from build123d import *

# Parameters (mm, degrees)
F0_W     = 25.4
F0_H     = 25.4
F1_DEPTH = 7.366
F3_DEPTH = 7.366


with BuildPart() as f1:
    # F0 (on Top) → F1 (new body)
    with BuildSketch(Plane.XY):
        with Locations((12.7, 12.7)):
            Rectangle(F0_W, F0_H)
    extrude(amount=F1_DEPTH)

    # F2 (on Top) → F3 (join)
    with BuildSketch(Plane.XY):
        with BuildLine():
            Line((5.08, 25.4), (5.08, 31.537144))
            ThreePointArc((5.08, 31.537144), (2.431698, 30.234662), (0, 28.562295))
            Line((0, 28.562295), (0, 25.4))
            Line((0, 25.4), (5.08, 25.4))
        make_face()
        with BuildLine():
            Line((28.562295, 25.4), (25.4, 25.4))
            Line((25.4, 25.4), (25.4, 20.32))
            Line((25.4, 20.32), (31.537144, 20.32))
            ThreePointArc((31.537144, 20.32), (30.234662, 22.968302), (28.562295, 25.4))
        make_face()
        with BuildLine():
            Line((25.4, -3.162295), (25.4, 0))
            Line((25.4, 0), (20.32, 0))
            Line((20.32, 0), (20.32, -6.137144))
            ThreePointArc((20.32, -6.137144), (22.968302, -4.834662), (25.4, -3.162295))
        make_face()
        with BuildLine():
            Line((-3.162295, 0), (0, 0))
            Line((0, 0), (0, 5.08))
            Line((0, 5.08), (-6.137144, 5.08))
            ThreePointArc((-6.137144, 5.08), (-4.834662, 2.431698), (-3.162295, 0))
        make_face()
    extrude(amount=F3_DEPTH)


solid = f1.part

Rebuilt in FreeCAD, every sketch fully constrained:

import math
import FreeCAD as App
import Part
import Sketcher

V = App.Vector
Q = App.Units.Quantity

doc = App.newDocument("Part")
body = doc.addObject("PartDesign::Body", "Body")

# Sketch on XY plane
sketch1 = body.newObject("Sketcher::SketchObject", "Sketch")
sketch1.AttachmentSupport = (doc.getObject("XY_Plane"), [""])
sketch1.MapMode = "FlatFace"
sketch1.addGeometry([
    Part.LineSegment(V(0, 25.4, 0), V(0, 0, 0)),
    Part.LineSegment(V(0, 0, 0), V(25.4, 0, 0)),
    Part.LineSegment(V(25.4, 0, 0), V(25.4, 25.4, 0)),
    Part.LineSegment(V(25.4, 25.4, 0), V(0, 25.4, 0)),
], False)
sketch1.addConstraint([
    Sketcher.Constraint("Coincident", 0, 2, 1, 1),
    Sketcher.Constraint("Coincident", 1, 2, 2, 1),
    Sketcher.Constraint("Coincident", 2, 2, 3, 1),
    Sketcher.Constraint("Coincident", 3, 2, 0, 1),
    Sketcher.Constraint("Vertical", 0),
    Sketcher.Constraint("Horizontal", 1),
    Sketcher.Constraint("Vertical", 2),
    Sketcher.Constraint("Horizontal", 3),
    Sketcher.Constraint("Coincident", 0, 2, -1, 1),
    Sketcher.Constraint("Equal", 3, 0),
    Sketcher.Constraint("DistanceX", 1, 1, 1, 2, Q("1 in")),
])
pad1 = body.newObject("PartDesign::Pad", "Pad")
pad1.Profile = sketch1
pad1.Length = Q("0.29 in")

# Sketch on XY plane
sketch2 = body.newObject("Sketcher::SketchObject", "Sketch001")
sketch2.AttachmentSupport = (doc.getObject("XY_Plane"), [""])
sketch2.MapMode = "FlatFace"
sketch2.addGeometry([
    Part.LineSegment(V(5.08, 25.4, 0), V(5.08, 31.537144, 0)),  # 0
    Part.ArcOfCircle(Part.Circle(V(12.7, 12.699998, 0), V(0, 0, 1), 20.320002), math.radians(112.024312), math.radians(128.682184)),  # 1
    Part.LineSegment(V(0, 28.562295, 0), V(0, 25.4, 0)),  # 2
    Part.LineSegment(V(0, 25.4, 0), V(5.08, 25.4, 0)),  # 3
    Part.LineSegment(V(28.562295, 25.4, 0), V(25.4, 25.4, 0)),  # 4
    Part.LineSegment(V(25.4, 25.4, 0), V(25.4, 20.32, 0)),  # 5
    Part.LineSegment(V(25.4, 20.32, 0), V(31.537144, 20.32, 0)),  # 6
    Part.ArcOfCircle(Part.Circle(V(12.699998, 12.7, 0), V(0, 0, 1), 20.320002), math.radians(22.024312), math.radians(38.682184)),  # 7
    Part.LineSegment(V(25.4, -3.162295, 0), V(25.4, 0, 0)),  # 8
    Part.LineSegment(V(25.4, 0, 0), V(20.32, 0, 0)),  # 9
    Part.LineSegment(V(20.32, 0, 0), V(20.32, -6.137144, 0)),  # 10
    Part.ArcOfCircle(Part.Circle(V(12.7, 12.700002, 0), V(0, 0, 1), 20.320002), math.radians(-67.975688), math.radians(-51.317816)),  # 11
    Part.LineSegment(V(-3.162295, 0, 0), V(0, 0, 0)),  # 12
    Part.LineSegment(V(0, 0, 0), V(0, 5.08, 0)),  # 13
    Part.LineSegment(V(0, 5.08, 0), V(-6.137144, 5.08, 0)),  # 14
    Part.ArcOfCircle(Part.Circle(V(12.700002, 12.7, 0), V(0, 0, 1), 20.320002), math.radians(-157.975688), math.radians(-141.317816)),  # 15
], False)
sketch2.addConstraint([
    Sketcher.Constraint("Coincident", 0, 2, 1, 1),
    Sketcher.Constraint("Coincident", 1, 2, 2, 1),
    Sketcher.Constraint("Coincident", 2, 2, 3, 1),
    Sketcher.Constraint("Coincident", 3, 2, 0, 1),
    Sketcher.Constraint("Coincident", 4, 2, 5, 1),
    Sketcher.Constraint("Coincident", 5, 2, 6, 1),
    Sketcher.Constraint("Coincident", 6, 2, 7, 1),
    Sketcher.Constraint("Coincident", 7, 2, 4, 1),
    Sketcher.Constraint("Coincident", 8, 2, 9, 1),
    Sketcher.Constraint("Coincident", 9, 2, 10, 1),
    Sketcher.Constraint("Coincident", 10, 2, 11, 1),
    Sketcher.Constraint("Coincident", 11, 2, 8, 1),
    Sketcher.Constraint("Coincident", 12, 2, 13, 1),
    Sketcher.Constraint("Coincident", 13, 2, 14, 1),
    Sketcher.Constraint("Coincident", 14, 2, 15, 1),
    Sketcher.Constraint("Coincident", 15, 2, 12, 1),
    Sketcher.Constraint("Vertical", 0),
    Sketcher.Constraint("Vertical", 2),
    Sketcher.Constraint("Horizontal", 3),
    Sketcher.Constraint("Horizontal", 4),
    Sketcher.Constraint("Vertical", 5),
    Sketcher.Constraint("Horizontal", 6),
    Sketcher.Constraint("Vertical", 8),
    Sketcher.Constraint("Horizontal", 9),
    Sketcher.Constraint("Vertical", 10),
    Sketcher.Constraint("Horizontal", 12),
    Sketcher.Constraint("Vertical", 13),
    Sketcher.Constraint("Horizontal", 14),
    Sketcher.Constraint("Coincident", 12, 2, -1, 1),
    Sketcher.Constraint("Coincident", 7, 3, 1, 3),
    Sketcher.Constraint("Coincident", 11, 3, 1, 3),
    Sketcher.Constraint("Coincident", 15, 3, 1, 3),
    Sketcher.Constraint("Equal", 1, 7),
    Sketcher.Constraint("Equal", 7, 11),
    Sketcher.Constraint("Equal", 11, 15),
    Sketcher.Constraint("PointOnObject", 1, 2, -2),
    Sketcher.Constraint("PointOnObject", 8, 2, -1),
    Sketcher.Constraint("Horizontal", 3, 2, 4, 2),
    Sketcher.Constraint("Vertical", 5, 2, 8, 2),
    Sketcher.Constraint("Equal", 3, 9),
    Sketcher.Constraint("Equal", 4, 12),
    Sketcher.Constraint("Equal", 6, 14),
    Sketcher.Constraint("Equal", 14, 0),
    Sketcher.Constraint("Equal", 12, 2),
    Sketcher.Constraint("Equal", 9, 5),
    Sketcher.Constraint("Radius", 1, Q("0.8000001 in")),
    Sketcher.Constraint("DistanceX", 3, 1, 3, 2, Q("0.2 in")),
    Sketcher.Constraint("DistanceY", -1, 1, 2, 2, Q("1 in")),
])
pad2 = body.newObject("PartDesign::Pad", "Pad001")
pad2.Profile = sketch2
pad2.Length = Q("0.29 in")

doc.recompute()
